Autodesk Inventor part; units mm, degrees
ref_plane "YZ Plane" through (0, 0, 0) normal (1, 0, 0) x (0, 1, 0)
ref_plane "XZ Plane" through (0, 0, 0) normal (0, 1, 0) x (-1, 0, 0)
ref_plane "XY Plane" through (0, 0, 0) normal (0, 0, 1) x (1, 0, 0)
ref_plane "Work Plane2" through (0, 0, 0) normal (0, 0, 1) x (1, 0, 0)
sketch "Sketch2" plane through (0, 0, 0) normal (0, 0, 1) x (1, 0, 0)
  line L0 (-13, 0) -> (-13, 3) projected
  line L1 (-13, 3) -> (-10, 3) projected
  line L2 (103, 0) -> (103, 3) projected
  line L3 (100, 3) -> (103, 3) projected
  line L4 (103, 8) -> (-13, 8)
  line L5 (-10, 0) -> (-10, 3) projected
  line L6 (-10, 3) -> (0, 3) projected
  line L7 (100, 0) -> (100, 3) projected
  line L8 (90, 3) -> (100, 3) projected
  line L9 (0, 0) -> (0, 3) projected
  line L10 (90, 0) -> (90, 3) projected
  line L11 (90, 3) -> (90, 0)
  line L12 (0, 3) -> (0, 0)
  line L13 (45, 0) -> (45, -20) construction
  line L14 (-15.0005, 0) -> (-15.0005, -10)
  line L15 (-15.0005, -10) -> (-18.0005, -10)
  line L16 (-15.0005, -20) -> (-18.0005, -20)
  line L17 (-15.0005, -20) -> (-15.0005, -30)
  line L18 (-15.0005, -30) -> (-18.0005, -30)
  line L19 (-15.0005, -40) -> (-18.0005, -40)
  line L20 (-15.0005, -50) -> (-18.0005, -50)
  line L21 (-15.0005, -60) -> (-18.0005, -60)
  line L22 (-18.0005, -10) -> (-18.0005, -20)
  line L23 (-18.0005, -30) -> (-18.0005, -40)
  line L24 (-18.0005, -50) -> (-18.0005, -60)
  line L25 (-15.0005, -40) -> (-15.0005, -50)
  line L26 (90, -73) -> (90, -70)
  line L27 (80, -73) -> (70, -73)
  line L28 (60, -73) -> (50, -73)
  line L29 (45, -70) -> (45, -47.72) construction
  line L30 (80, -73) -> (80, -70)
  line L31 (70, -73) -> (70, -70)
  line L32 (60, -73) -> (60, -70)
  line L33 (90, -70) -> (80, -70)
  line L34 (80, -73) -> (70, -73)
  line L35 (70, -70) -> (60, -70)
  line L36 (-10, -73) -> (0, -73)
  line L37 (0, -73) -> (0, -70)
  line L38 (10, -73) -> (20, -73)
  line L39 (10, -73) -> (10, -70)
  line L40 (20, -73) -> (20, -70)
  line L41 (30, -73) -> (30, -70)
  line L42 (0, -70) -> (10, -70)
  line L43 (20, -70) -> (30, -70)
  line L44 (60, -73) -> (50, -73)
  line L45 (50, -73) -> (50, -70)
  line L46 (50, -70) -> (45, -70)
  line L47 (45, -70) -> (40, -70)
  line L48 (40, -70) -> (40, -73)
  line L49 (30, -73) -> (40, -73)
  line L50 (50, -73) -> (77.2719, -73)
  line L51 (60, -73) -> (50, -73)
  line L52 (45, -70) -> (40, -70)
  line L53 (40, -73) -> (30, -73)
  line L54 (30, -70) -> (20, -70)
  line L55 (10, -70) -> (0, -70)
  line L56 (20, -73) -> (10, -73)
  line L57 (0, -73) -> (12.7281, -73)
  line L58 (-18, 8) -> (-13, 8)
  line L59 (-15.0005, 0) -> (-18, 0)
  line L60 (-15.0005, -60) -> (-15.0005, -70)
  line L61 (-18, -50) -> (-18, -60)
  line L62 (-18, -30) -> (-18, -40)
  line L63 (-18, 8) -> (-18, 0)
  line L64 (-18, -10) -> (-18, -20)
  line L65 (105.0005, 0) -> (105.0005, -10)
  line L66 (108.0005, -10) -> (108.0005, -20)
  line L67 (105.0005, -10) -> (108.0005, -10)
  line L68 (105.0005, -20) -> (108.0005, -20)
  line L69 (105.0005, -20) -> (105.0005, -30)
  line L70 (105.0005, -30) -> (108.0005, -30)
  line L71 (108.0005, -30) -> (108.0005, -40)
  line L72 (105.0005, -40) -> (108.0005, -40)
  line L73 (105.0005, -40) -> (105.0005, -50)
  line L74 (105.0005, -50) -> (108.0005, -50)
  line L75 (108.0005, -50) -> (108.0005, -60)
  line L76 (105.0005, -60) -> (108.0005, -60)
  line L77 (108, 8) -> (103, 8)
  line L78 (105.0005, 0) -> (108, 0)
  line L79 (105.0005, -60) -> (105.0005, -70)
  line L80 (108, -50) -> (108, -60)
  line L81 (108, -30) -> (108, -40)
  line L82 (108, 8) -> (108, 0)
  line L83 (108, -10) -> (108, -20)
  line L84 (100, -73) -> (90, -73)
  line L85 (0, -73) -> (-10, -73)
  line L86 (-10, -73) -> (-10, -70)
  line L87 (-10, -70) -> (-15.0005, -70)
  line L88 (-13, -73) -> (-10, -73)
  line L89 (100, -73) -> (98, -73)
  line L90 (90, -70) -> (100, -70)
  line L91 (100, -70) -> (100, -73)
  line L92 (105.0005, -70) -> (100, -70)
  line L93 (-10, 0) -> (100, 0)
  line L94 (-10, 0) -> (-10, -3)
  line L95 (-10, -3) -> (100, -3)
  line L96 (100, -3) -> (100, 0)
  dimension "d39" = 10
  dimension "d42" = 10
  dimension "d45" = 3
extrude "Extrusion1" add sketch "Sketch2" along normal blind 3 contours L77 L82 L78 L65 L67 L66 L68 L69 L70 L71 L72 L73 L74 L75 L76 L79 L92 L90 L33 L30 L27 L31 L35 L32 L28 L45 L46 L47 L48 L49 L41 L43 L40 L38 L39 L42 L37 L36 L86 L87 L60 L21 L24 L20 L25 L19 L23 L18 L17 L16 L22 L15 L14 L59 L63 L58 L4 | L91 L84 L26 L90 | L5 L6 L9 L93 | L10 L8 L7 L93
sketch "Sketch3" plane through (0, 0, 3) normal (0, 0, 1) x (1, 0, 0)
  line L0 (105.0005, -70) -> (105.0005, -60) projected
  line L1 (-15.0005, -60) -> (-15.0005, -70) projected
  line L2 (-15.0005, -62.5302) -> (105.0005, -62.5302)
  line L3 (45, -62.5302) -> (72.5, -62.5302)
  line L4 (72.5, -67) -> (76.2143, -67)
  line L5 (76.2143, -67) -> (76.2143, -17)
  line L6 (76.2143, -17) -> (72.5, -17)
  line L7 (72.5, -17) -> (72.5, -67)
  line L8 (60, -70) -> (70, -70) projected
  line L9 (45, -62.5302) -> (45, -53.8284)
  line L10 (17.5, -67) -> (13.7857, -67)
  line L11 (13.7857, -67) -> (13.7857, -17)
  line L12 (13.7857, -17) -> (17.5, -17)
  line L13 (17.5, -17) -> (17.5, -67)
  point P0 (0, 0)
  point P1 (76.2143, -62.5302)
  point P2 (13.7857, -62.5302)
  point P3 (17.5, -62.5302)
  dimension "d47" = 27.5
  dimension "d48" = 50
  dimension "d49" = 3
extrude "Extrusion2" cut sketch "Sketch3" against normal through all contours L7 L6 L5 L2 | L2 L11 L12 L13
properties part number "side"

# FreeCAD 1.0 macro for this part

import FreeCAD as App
import Part
import Sketcher
from FreeCAD import Vector
Q = App.Units.Quantity

doc = App.newDocument("Part")
body = doc.addObject("PartDesign::Body", "Body")

sketch1 = doc.addObject("Sketcher::SketchObject", "Sketch")
body.addObject(sketch1)
sketch1.AttachmentSupport = (doc.XY_Plane, [""])
sketch1.MapMode = "FlatFace"
sketch1.addGeometry([
    Part.LineSegment(Vector(108, 8, 0), Vector(-18, 8, 0)),
    Part.LineSegment(Vector(-18, 8, 0), Vector(-18, 0, 0)),
    Part.LineSegment(Vector(-18, 0, 0), Vector(-15, 0, 0)),
    Part.LineSegment(Vector(-15, 0, 0), Vector(-15, -10, 0)),
    Part.LineSegment(Vector(-15, -10, 0), Vector(-18, -10, 0)),
    Part.LineSegment(Vector(-18, -10, 0), Vector(-18, -20, 0)),
    Part.LineSegment(Vector(-18, -20, 0), Vector(-15, -20, 0)),
    Part.LineSegment(Vector(-15, -20, 0), Vector(-15, -30, 0)),
    Part.LineSegment(Vector(-15, -30, 0), Vector(-18, -30, 0)),
    Part.LineSegment(Vector(-18, -30, 0), Vector(-18, -40, 0)),
    Part.LineSegment(Vector(-18, -40, 0), Vector(-15, -40, 0)),
    Part.LineSegment(Vector(-15, -40, 0), Vector(-15, -50, 0)),
    Part.LineSegment(Vector(-15, -50, 0), Vector(-18, -50, 0)),
    Part.LineSegment(Vector(-18, -50, 0), Vector(-18, -60, 0)),
    Part.LineSegment(Vector(-18, -60, 0), Vector(-15, -60, 0)),
    Part.LineSegment(Vector(-15, -60, 0), Vector(-15, -70, 0)),
    Part.LineSegment(Vector(-15, -70, 0), Vector(-10, -70, 0)),
    Part.LineSegment(Vector(-10, -70, 0), Vector(-10, -73, 0)),
    Part.LineSegment(Vector(-10, -73, 0), Vector(0, -73, 0)),
    Part.LineSegment(Vector(0, -73, 0), Vector(0, -70, 0)),
    Part.LineSegment(Vector(0, -70, 0), Vector(10, -70, 0)),
    Part.LineSegment(Vector(10, -70, 0), Vector(10, -73, 0)),
    Part.LineSegment(Vector(10, -73, 0), Vector(20, -73, 0)),
    Part.LineSegment(Vector(20, -73, 0), Vector(20, -70, 0)),
    Part.LineSegment(Vector(20, -70, 0), Vector(30, -70, 0)),
    Part.LineSegment(Vector(30, -70, 0), Vector(30, -73, 0)),
    Part.LineSegment(Vector(30, -73, 0), Vector(40, -73, 0)),
    Part.LineSegment(Vector(40, -73, 0), Vector(40, -70, 0)),
    Part.LineSegment(Vector(40, -70, 0), Vector(50, -70, 0)),
    Part.LineSegment(Vector(50, -70, 0), Vector(50, -73, 0)),
    Part.LineSegment(Vector(50, -73, 0), Vector(60, -73, 0)),
    Part.LineSegment(Vector(60, -73, 0), Vector(60, -70, 0)),
    Part.LineSegment(Vector(60, -70, 0), Vector(70, -70, 0)),
    Part.LineSegment(Vector(70, -70, 0), Vector(70, -73, 0)),
    Part.LineSegment(Vector(70, -73, 0), Vector(80, -73, 0)),
    Part.LineSegment(Vector(80, -73, 0), Vector(80, -70, 0)),
    Part.LineSegment(Vector(80, -70, 0), Vector(90, -70, 0)),
    Part.LineSegment(Vector(90, -70, 0), Vector(90, -73, 0)),
    Part.LineSegment(Vector(90, -73, 0), Vector(100, -73, 0)),
    Part.LineSegment(Vector(100, -73, 0), Vector(100, -70, 0)),
    Part.LineSegment(Vector(100, -70, 0), Vector(105, -70, 0)),
    Part.LineSegment(Vector(105, -70, 0), Vector(105, -60, 0)),
    Part.LineSegment(Vector(105, -60, 0), Vector(108, -60, 0)),
    Part.LineSegment(Vector(108, -60, 0), Vector(108, -50, 0)),
    Part.LineSegment(Vector(108, -50, 0), Vector(105, -50, 0)),
    Part.LineSegment(Vector(105, -50, 0), Vector(105, -40, 0)),
    Part.LineSegment(Vector(105, -40, 0), Vector(108, -40, 0)),
    Part.LineSegment(Vector(108, -40, 0), Vector(108, -30, 0)),
    Part.LineSegment(Vector(108, -30, 0), Vector(105, -30, 0)),
    Part.LineSegment(Vector(105, -30, 0), Vector(105, -20, 0)),
    Part.LineSegment(Vector(105, -20, 0), Vector(108, -20, 0)),
    Part.LineSegment(Vector(108, -20, 0), Vector(108, -10, 0)),
    Part.LineSegment(Vector(108, -10, 0), Vector(105, -10, 0)),
    Part.LineSegment(Vector(105, -10, 0), Vector(105, 0, 0)),
    Part.LineSegment(Vector(105, 0, 0), Vector(108, 0, 0)),
    Part.LineSegment(Vector(108, 0, 0), Vector(108, 8, 0)),
    Part.LineSegment(Vector(-10, -3, 0), Vector(-10, 0, 0)),
    Part.LineSegment(Vector(-10, 0, 0), Vector(100, 0, 0)),
    Part.LineSegment(Vector(100, 0, 0), Vector(100, -3, 0)),
    Part.LineSegment(Vector(100, -3, 0), Vector(-10, -3, 0)),
], False)
sketch1.addConstraint([
    Sketcher.Constraint("Coincident", 0, 2, 1, 1),
    Sketcher.Constraint("Coincident", 1, 2, 2, 1),
    Sketcher.Constraint("Coincident", 2, 2, 3, 1),
    Sketcher.Constraint("Coincident", 3, 2, 4, 1),
    Sketcher.Constraint("Coincident", 4, 2, 5, 1),
    Sketcher.Constraint("Coincident", 5, 2, 6, 1),
    Sketcher.Constraint("Coincident", 6, 2, 7, 1),
    Sketcher.Constraint("Coincident", 7, 2, 8, 1),
    Sketcher.Constraint("Coincident", 8, 2, 9, 1),
    Sketcher.Constraint("Coincident", 9, 2, 10, 1),
    Sketcher.Constraint("Coincident", 10, 2, 11, 1),
    Sketcher.Constraint("Coincident", 11, 2, 12, 1),
    Sketcher.Constraint("Coincident", 12, 2, 13, 1),
    Sketcher.Constraint("Coincident", 13, 2, 14, 1),
    Sketcher.Constraint("Coincident", 14, 2, 15, 1),
    Sketcher.Constraint("Coincident", 15, 2, 16, 1),
    Sketcher.Constraint("Coincident", 16, 2, 17, 1),
    Sketcher.Constraint("Coincident", 17, 2, 18, 1),
    Sketcher.Constraint("Coincident", 18, 2, 19, 1),
    Sketcher.Constraint("Coincident", 19, 2, 20, 1),
    Sketcher.Constraint("Coincident", 20, 2, 21, 1),
    Sketcher.Constraint("Coincident", 21, 2, 22, 1),
    Sketcher.Constraint("Coincident", 22, 2, 23, 1),
    Sketcher.Constraint("Coincident", 23, 2, 24, 1),
    Sketcher.Constraint("Coincident", 24, 2, 25, 1),
    Sketcher.Constraint("Coincident", 25, 2, 26, 1),
    Sketcher.Constraint("Coincident", 26, 2, 27, 1),
    Sketcher.Constraint("Coincident", 27, 2, 28, 1),
    Sketcher.Constraint("Coincident", 28, 2, 29, 1),
    Sketcher.Constraint("Coincident", 29, 2, 30, 1),
    Sketcher.Constraint("Coincident", 30, 2, 31, 1),
    Sketcher.Constraint("Coincident", 31, 2, 32, 1),
    Sketcher.Constraint("Coincident", 32, 2, 33, 1),
    Sketcher.Constraint("Coincident", 33, 2, 34, 1),
    Sketcher.Constraint("Coincident", 34, 2, 35, 1),
    Sketcher.Constraint("Coincident", 35, 2, 36, 1),
    Sketcher.Constraint("Coincident", 36, 2, 37, 1),
    Sketcher.Constraint("Coincident", 37, 2, 38, 1),
    Sketcher.Constraint("Coincident", 38, 2, 39, 1),
    Sketcher.Constraint("Coincident", 39, 2, 40, 1),
    Sketcher.Constraint("Coincident", 40, 2, 41, 1),
    Sketcher.Constraint("Coincident", 41, 2, 42, 1),
    Sketcher.Constraint("Coincident", 42, 2, 43, 1),
    Sketcher.Constraint("Coincident", 43, 2, 44, 1),
    Sketcher.Constraint("Coincident", 44, 2, 45, 1),
    Sketcher.Constraint("Coincident", 45, 2, 46, 1),
    Sketcher.Constraint("Coincident", 46, 2, 47, 1),
    Sketcher.Constraint("Coincident", 47, 2, 48, 1),
    Sketcher.Constraint("Coincident", 48, 2, 49, 1),
    Sketcher.Constraint("Coincident", 49, 2, 50, 1),
    Sketcher.Constraint("Coincident", 50, 2, 51, 1),
    Sketcher.Constraint("Coincident", 51, 2, 52, 1),
    Sketcher.Constraint("Coincident", 52, 2, 53, 1),
    Sketcher.Constraint("Coincident", 53, 2, 54, 1),
    Sketcher.Constraint("Coincident", 54, 2, 55, 1),
    Sketcher.Constraint("Coincident", 55, 2, 0, 1),
    Sketcher.Constraint("Coincident", 56, 2, 57, 1),
    Sketcher.Constraint("Coincident", 57, 2, 58, 1),
    Sketcher.Constraint("Coincident", 58, 2, 59, 1),
    Sketcher.Constraint("Coincident", 59, 2, 56, 1),
    Sketcher.Constraint("Horizontal", 0),
    Sketcher.Constraint("Vertical", 1),
    Sketcher.Constraint("Horizontal", 2),
    Sketcher.Constraint("Vertical", 3),
    Sketcher.Constraint("Horizontal", 4),
    Sketcher.Constraint("Vertical", 5),
    Sketcher.Constraint("Horizontal", 6),
    Sketcher.Constraint("Vertical", 7),
    Sketcher.Constraint("Horizontal", 8),
    Sketcher.Constraint("Vertical", 9),
    Sketcher.Constraint("Horizontal", 10),
    Sketcher.Constraint("Vertical", 11),
    Sketcher.Constraint("Horizontal", 12),
    Sketcher.Constraint("Vertical", 13),
    Sketcher.Constraint("Horizontal", 14),
    Sketcher.Constraint("Vertical", 15),
    Sketcher.Constraint("Horizontal", 16),
    Sketcher.Constraint("Vertical", 17),
    Sketcher.Constraint("Horizontal", 18),
    Sketcher.Constraint("Vertical", 19),
    Sketcher.Constraint("Horizontal", 20),
    Sketcher.Constraint("Vertical", 21),
    Sketcher.Constraint("Horizontal", 22),
    Sketcher.Constraint("Vertical", 23),
    Sketcher.Constraint("Horizontal", 24),
    Sketcher.Constraint("Vertical", 25),
    Sketcher.Constraint("Horizontal", 26),
    Sketcher.Constraint("Vertical", 27),
    Sketcher.Constraint("Horizontal", 28),
    Sketcher.Constraint("Vertical", 29),
    Sketcher.Constraint("Horizontal", 30),
    Sketcher.Constraint("Vertical", 31),
    Sketcher.Constraint("Horizontal", 32),
    Sketcher.Constraint("Vertical", 33),
    Sketcher.Constraint("Horizontal", 34),
    Sketcher.Constraint("Vertical", 35),
    Sketcher.Constraint("Horizontal", 36),
    Sketcher.Constraint("Vertical", 37),
    Sketcher.Constraint("Horizontal", 38),
    Sketcher.Constraint("Vertical", 39),
    Sketcher.Constraint("Horizontal", 40),
    Sketcher.Constraint("Vertical", 41),
    Sketcher.Constraint("Horizontal", 42),
    Sketcher.Constraint("Vertical", 43),
    Sketcher.Constraint("Horizontal", 44),
    Sketcher.Constraint("Vertical", 45),
    Sketcher.Constraint("Horizontal", 46),
    Sketcher.Constraint("Vertical", 47),
    Sketcher.Constraint("Horizontal", 48),
    Sketcher.Constraint("Vertical", 49),
    Sketcher.Constraint("Horizontal", 50),
    Sketcher.Constraint("Vertical", 51),
    Sketcher.Constraint("Horizontal", 52),
    Sketcher.Constraint("Vertical", 53),
    Sketcher.Constraint("Horizontal", 54),
    Sketcher.Constraint("Vertical", 55),
    Sketcher.Constraint("Vertical", 56),
    Sketcher.Constraint("Horizontal", 57),
    Sketcher.Constraint("Vertical", 58),
    Sketcher.Constraint("Horizontal", 59),
    Sketcher.Constraint("Symmetric", 16, 2, 20, 2, -2),
    Sketcher.Constraint("PointOnObject", 1, 2, -1),
    Sketcher.Constraint("PointOnObject", 18, 2, -2),
    Sketcher.Constraint("PointOnObject", 53, 2, -1),
    Sketcher.Constraint("PointOnObject", 56, 2, -1),
    Sketcher.Constraint("Horizontal", 18, 2, 21, 2),
    Sketcher.Constraint("Horizontal", 20, 2, 23, 2),
    Sketcher.Constraint("Horizontal", 22, 2, 25, 2),
    Sketcher.Constraint("Horizontal", 24, 2, 27, 2),
    Sketcher.Constraint("Horizontal", 26, 2, 29, 2),
    Sketcher.Constraint("Horizontal", 28, 2, 31, 2),
    Sketcher.Constraint("Horizontal", 30, 2, 33, 2),
    Sketcher.Constraint("Horizontal", 32, 2, 35, 2),
    Sketcher.Constraint("Horizontal", 34, 2, 37, 2),
    Sketcher.Constraint("Horizontal", 36, 2, 39, 2),
    Sketcher.Constraint("Horizontal", 14, 2, 41, 2),
    Sketcher.Constraint("Horizontal", 12, 2, 43, 2),
    Sketcher.Constraint("Horizontal", 10, 2, 45, 2),
    Sketcher.Constraint("Horizontal", 8, 2, 47, 2),
    Sketcher.Constraint("Horizontal", 6, 2, 49, 2),
    Sketcher.Constraint("Horizontal", 4, 2, 51, 2),
    Sketcher.Constraint("Vertical", 3, 2, 6, 2),
    Sketcher.Constraint("Vertical", 5, 2, 8, 2),
    Sketcher.Constraint("Vertical", 7, 2, 10, 2),
    Sketcher.Constraint("Vertical", 9, 2, 12, 2),
    Sketcher.Constraint("Vertical", 11, 2, 14, 2),
    Sketcher.Constraint("Vertical", 41, 2, 44, 2),
    Sketcher.Constraint("Vertical", 43, 2, 46, 2),
    Sketcher.Constraint("Vertical", 45, 2, 48, 2),
    Sketcher.Constraint("Vertical", 47, 2, 50, 2),
    Sketcher.Constraint("Vertical", 49, 2, 52, 2),
    Sketcher.Constraint("Vertical", 17, 2, 56, 2),
    Sketcher.Constraint("Vertical", 39, 2, 57, 2),
    Sketcher.Constraint("Equal", 20, 22),
    Sketcher.Constraint("Equal", 22, 24),
    Sketcher.Constraint("Equal", 24, 26),
    Sketcher.Constraint("Equal", 26, 28),
    Sketcher.Constraint("Equal", 28, 30),
    Sketcher.Constraint("Equal", 30, 32),
    Sketcher.Constraint("Equal", 32, 34),
    Sketcher.Constraint("Equal", 34, 36),
    Sketcher.Constraint("Equal", 36, 38),
    Sketcher.Constraint("Equal", 16, 40),
    Sketcher.Constraint("Equal", 14, 42),
    Sketcher.Constraint("Equal", 2, 54),
    Sketcher.Constraint("Equal", 38, 3),
    Sketcher.Constraint("Equal", 3, 5),
    Sketcher.Constraint("Equal", 5, 7),
    Sketcher.Constraint("Equal", 7, 9),
    Sketcher.Constraint("Equal", 9, 11),
    Sketcher.Constraint("Equal", 11, 13),
    Sketcher.Constraint("Equal", 13, 15),
    Sketcher.Constraint("Equal", 52, 17),
    Sketcher.Constraint("Equal", 39, 56),
    Sketcher.Constraint("DistanceX", 4, 2, 4, 1, Q("3 mm")),
    Sketcher.Constraint("DistanceX", 18, 1, 18, 2, Q("10 mm")),
    Sketcher.Constraint("DistanceX", 0, 2, 0, 1, Q("126 mm")),
    Sketcher.Constraint("DistanceY", 1, 2, 1, 1, Q("8 mm")),
    Sketcher.Constraint("DistanceX", 2, 1, 2, 2, Q("2.9995 mm")),
])
pad1 = doc.addObject("PartDesign::Pad", "Pad")
body.addObject(pad1)
pad1.Profile = sketch1
pad1.Length = 3

sketch2 = doc.addObject("Sketcher::SketchObject", "Sketch001")
body.addObject(sketch2)
sketch2.AttachmentSupport = (doc.XY_Plane, [""])
sketch2.MapMode = "FlatFace"
sketch2.AttachmentOffset = App.Placement(Vector(0, 0, 3), App.Rotation())
sketch2.addGeometry([
    Part.LineSegment(Vector(72.5, -17, 0), Vector(72.5, -62.5, 0)),
    Part.LineSegment(Vector(72.5, -62.5, 0), Vector(76.2, -62.5, 0)),
    Part.LineSegment(Vector(76.2, -62.5, 0), Vector(76.2, -17, 0)),
    Part.LineSegment(Vector(76.2, -17, 0), Vector(72.5, -17, 0)),
    Part.LineSegment(Vector(13.8, -62.5, 0), Vector(17.5, -62.5, 0)),
    Part.LineSegment(Vector(17.5, -62.5, 0), Vector(17.5, -17, 0)),
    Part.LineSegment(Vector(17.5, -17, 0), Vector(13.8, -17, 0)),
    Part.LineSegment(Vector(13.8, -17, 0), Vector(13.8, -62.5, 0)),
], False)
sketch2.addConstraint([
    Sketcher.Constraint("Coincident", 0, 2, 1, 1),
    Sketcher.Constraint("Coincident", 1, 2, 2, 1),
    Sketcher.Constraint("Coincident", 2, 2, 3, 1),
    Sketcher.Constraint("Coincident", 3, 2, 0, 1),
    Sketcher.Constraint("Coincident", 4, 2, 5, 1),
    Sketcher.Constraint("Coincident", 5, 2, 6, 1),
    Sketcher.Constraint("Coincident", 6, 2, 7, 1),
    Sketcher.Constraint("Coincident", 7, 2, 4, 1),
    Sketcher.Constraint("Vertical", 0),
    Sketcher.Constraint("Horizontal", 1),
    Sketcher.Constraint("Vertical", 2),
    Sketcher.Constraint("Horizontal", 3),
    Sketcher.Constraint("Horizontal", 4),
    Sketcher.Constraint("Vertical", 5),
    Sketcher.Constraint("Horizontal", 6),
    Sketcher.Constraint("Vertical", 7),
    Sketcher.Constraint("Horizontal", 1, 2, 4, 2),
    Sketcher.Constraint("Horizontal", 3, 2, 5, 2),
    Sketcher.Constraint("Equal", 3, 4),
    Sketcher.Constraint("DistanceY", 2, 2, -1, 1, Q("17 mm")),
    Sketcher.Constraint("DistanceX", 4, 2, 0, 2, Q("55 mm")),
    Sketcher.Constraint("DistanceX", -1, 1, 0, 2, Q("72.5 mm")),
    Sketcher.Constraint("DistanceX", 1, 1, 1, 2, Q("3.7143 mm")),
    Sketcher.Constraint("DistanceY", 0, 2, 0, 1, Q("45.5302 mm")),
])
pocket1 = doc.addObject("PartDesign::Pocket", "Pocket")
body.addObject(pocket1)
pocket1.Profile = sketch2
pocket1.Type = "ThroughAll"

doc.recompute()
